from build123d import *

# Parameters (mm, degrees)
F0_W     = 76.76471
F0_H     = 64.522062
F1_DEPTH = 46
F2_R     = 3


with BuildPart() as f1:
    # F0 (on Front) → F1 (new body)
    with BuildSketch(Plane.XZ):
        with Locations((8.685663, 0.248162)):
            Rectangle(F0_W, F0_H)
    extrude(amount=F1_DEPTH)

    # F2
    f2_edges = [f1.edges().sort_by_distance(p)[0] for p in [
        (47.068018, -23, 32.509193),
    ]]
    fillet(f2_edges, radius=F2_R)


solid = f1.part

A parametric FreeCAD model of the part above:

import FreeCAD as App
import Part
import Sketcher
from FreeCAD import Vector


def edges_at(feature, points):
    """Names of the edges that pass closest to the given points."""
    edges = feature.Shape.Edges
    near = lambda p: min(range(len(edges)), key=lambda i: edges[i].distToShape(Part.Vertex(*p))[0])
    return sorted({f"Edge{near(p) + 1}" for p in points})

doc = App.newDocument("Part")
body = doc.addObject("PartDesign::Body", "Body")

sketch1 = body.newObject("Sketcher::SketchObject", "Sketch")
sketch1.AttachmentSupport = (doc.getObject("XZ_Plane"), [""])
sketch1.MapMode = "FlatFace"
sketch1.addGeometry([
    Part.LineSegment(Vector(-30, 33, 0), Vector(-30, -32, 0)),
    Part.LineSegment(Vector(-30, -32, 0), Vector(47, -32, 0)),
    Part.LineSegment(Vector(47, -32, 0), Vector(47, 33, 0)),
    Part.LineSegment(Vector(47, 33, 0), Vector(-30, 33, 0)),
], False)
sketch1.addConstraint([
    Sketcher.Constraint("Coincident", 0, 2, 1, 1),
    Sketcher.Constraint("Coincident", 1, 2, 2, 1),
    Sketcher.Constraint("Coincident", 2, 2, 3, 1),
    Sketcher.Constraint("Coincident", 3, 2, 0, 1),
    Sketcher.Constraint("Vertical", 0),
    Sketcher.Constraint("Horizontal", 1),
    Sketcher.Constraint("Vertical", 2),
    Sketcher.Constraint("Horizontal", 3),
    Sketcher.Constraint("DistanceX", 1, 1, 1, 2, 76.76471),
    Sketcher.Constraint("DistanceY", 0, 2, 0, 1, 64.522062),
    Sketcher.Constraint("DistanceX", 0, 2, -1, 1, 29.696692),
    Sketcher.Constraint("DistanceY", 0, 2, -1, 1, 32.012869),
])
pad1 = body.newObject("PartDesign::Pad", "Pad")
pad1.Profile = sketch1
pad1.Length = 46
doc.recompute()

fillet = body.newObject("PartDesign::Fillet", "Fillet")
fillet.Base = (pad1, edges_at(pad1, [(47.068, -23, 32.509)]))
fillet.Radius = 3

doc.recompute()
